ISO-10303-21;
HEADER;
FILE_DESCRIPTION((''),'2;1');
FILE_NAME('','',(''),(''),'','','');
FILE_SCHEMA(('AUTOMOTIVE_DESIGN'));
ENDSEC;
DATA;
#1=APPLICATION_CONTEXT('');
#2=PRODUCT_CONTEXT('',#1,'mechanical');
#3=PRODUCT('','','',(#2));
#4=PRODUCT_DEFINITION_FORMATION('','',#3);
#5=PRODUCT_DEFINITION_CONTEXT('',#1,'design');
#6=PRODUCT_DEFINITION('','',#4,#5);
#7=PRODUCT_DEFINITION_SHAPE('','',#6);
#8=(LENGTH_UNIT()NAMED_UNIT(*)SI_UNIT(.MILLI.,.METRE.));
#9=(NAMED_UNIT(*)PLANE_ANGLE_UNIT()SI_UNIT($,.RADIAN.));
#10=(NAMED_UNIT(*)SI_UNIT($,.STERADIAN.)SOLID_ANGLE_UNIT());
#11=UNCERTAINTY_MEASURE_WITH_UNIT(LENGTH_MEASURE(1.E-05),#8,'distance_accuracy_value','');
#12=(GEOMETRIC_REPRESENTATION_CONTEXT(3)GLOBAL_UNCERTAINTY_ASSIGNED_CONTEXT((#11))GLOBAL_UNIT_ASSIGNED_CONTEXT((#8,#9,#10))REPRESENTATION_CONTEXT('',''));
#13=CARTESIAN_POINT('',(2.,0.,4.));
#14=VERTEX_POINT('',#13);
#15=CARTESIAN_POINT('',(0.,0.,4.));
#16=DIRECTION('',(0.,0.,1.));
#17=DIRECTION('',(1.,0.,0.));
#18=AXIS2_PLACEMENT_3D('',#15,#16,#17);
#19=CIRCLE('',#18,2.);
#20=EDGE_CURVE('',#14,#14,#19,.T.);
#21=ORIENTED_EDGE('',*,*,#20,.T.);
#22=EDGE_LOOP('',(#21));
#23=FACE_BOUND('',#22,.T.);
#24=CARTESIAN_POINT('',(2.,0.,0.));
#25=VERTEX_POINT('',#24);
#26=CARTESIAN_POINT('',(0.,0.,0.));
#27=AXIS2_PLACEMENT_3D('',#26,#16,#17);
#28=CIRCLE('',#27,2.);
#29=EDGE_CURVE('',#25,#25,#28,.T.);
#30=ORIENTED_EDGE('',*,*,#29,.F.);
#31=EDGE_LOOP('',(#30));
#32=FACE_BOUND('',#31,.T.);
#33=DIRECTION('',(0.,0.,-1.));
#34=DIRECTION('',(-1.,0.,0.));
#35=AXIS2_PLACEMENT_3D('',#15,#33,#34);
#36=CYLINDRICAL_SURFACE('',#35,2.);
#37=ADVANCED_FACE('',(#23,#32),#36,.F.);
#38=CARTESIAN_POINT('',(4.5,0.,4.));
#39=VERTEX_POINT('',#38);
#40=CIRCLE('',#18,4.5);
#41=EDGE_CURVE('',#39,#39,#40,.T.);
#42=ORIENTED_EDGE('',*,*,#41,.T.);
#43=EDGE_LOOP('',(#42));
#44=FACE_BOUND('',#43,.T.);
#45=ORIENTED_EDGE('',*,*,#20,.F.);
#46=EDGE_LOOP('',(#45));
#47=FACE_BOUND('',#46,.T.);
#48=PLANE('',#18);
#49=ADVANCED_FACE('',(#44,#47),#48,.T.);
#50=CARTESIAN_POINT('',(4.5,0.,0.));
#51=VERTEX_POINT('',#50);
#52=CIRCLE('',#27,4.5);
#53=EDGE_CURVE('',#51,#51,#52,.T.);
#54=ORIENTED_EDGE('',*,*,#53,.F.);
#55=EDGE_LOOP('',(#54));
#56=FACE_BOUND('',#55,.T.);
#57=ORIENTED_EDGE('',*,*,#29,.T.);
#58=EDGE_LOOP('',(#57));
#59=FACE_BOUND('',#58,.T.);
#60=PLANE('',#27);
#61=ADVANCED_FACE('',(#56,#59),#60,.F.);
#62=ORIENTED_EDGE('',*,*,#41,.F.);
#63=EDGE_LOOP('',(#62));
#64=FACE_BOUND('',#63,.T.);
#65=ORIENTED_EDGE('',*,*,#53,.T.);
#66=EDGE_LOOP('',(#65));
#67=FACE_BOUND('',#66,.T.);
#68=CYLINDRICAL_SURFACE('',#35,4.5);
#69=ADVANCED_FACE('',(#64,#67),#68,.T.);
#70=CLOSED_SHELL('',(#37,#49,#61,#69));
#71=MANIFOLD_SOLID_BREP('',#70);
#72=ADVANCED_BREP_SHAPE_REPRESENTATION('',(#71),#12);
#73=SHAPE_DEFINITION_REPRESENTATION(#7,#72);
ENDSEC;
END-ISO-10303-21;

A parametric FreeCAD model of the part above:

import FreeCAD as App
import Part
import Sketcher
from FreeCAD import Vector

doc = App.newDocument("Part")
params = doc.addObject("Spreadsheet::Sheet", "Params")
for row, (alias, value) in enumerate([
    ("sketch1_diameter", "9 mm"),
    ("sketch1_diameter2", "4 mm"),
    ("pad1_length", "4 mm"),
], start=1):
    params.set(f"A{row}", alias)
    params.set(f"B{row}", "=" + value)
    params.setAlias(f"B{row}", alias)

body = doc.addObject("PartDesign::Body", "Body")

# Sketch on XY plane
sketch1 = body.newObject("Sketcher::SketchObject", "Sketch")
sketch1.AttachmentSupport = (doc.getObject("XY_Plane"), [""])
sketch1.MapMode = "FlatFace"
sketch1.addGeometry([
    Part.Circle(Vector(0, 0, 0), Vector(0, 0, 1), 4.5),
    Part.Circle(Vector(0, 0, 0), Vector(0, 0, 1), 2),
], False)
sketch1.addConstraint([
    Sketcher.Constraint("Coincident", 0, 3, -1, 1),
    Sketcher.Constraint("Coincident", 1, 3, -1, 1),
    Sketcher.Constraint("Diameter", 0, 9.0),
    Sketcher.Constraint("Diameter", 1, 4.0),
])
sketch1.setExpression("Constraints[2]", "Params.sketch1_diameter")
sketch1.setExpression("Constraints[3]", "Params.sketch1_diameter2")
pad1 = body.newObject("PartDesign::Pad", "Pad")
pad1.Profile = sketch1
pad1.setExpression("Length", "Params.pad1_length")

doc.recompute()
